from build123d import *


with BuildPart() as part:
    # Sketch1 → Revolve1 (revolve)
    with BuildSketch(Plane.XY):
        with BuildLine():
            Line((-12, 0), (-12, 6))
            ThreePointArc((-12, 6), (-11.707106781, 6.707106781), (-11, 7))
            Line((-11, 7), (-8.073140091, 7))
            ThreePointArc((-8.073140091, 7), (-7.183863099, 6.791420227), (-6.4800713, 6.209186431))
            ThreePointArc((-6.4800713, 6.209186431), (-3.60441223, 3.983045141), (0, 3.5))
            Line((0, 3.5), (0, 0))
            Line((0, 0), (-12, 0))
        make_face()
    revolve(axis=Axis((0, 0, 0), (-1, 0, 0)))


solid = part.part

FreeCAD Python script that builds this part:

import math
import FreeCAD as App
import Part
import Sketcher

V = App.Vector

doc = App.newDocument("Part")
body = doc.addObject("PartDesign::Body", "Body")

# Sketch on XY plane
sketch1 = doc.addObject("Sketcher::SketchObject", "Sketch")
body.addObject(sketch1)
sketch1.AttachmentSupport = (doc.XY_Plane, [""])
sketch1.MapMode = "FlatFace"
sketch1.addGeometry(Part.LineSegment(V(-12, 6, 0), V(-12, 0, 0)), False)
sketch1.addGeometry(Part.LineSegment(V(-12, 0, 0), V(0, 0, 0)), False)
sketch1.addGeometry(Part.LineSegment(V(0, 0, 0), V(0, 3.5, 0)), False)
sketch1.addGeometry(Part.ArcOfCircle(Part.Circle(V(-0.9, 10.4, 0), V(0, 0, 1), 7), math.radians(-143), math.radians(-83)), False)
sketch1.addGeometry(Part.ArcOfCircle(Part.Circle(V(-8.1, 5, 0), V(0, 0, 1), 2), math.radians(37), math.radians(90)), False)
sketch1.addGeometry(Part.LineSegment(V(-8.1, 7, 0), V(-11, 7, 0)), False)
sketch1.addGeometry(Part.ArcOfCircle(Part.Circle(V(-11, 6, 0), V(0, 0, 1), 1), math.radians(90), math.radians(180)), False)
sketch1.addConstraint(Sketcher.Constraint("Coincident", 0, 2, 1, 1))
sketch1.addConstraint(Sketcher.Constraint("Coincident", 1, 2, 2, 1))
sketch1.addConstraint(Sketcher.Constraint("Coincident", 2, 2, 3, 2))
sketch1.addConstraint(Sketcher.Constraint("Tangent", 3, 1, 4, 1))
sketch1.addConstraint(Sketcher.Constraint("Tangent", 4, 2, 5, 1))
sketch1.addConstraint(Sketcher.Constraint("Tangent", 5, 2, 6, 1))
sketch1.addConstraint(Sketcher.Constraint("Tangent", 6, 2, 0, 1))
sketch1.addConstraint(Sketcher.Constraint("Vertical", 0))
sketch1.addConstraint(Sketcher.Constraint("Horizontal", 1))
sketch1.addConstraint(Sketcher.Constraint("Vertical", 2))
sketch1.addConstraint(Sketcher.Constraint("Horizontal", 5))
sketch1.addConstraint(Sketcher.Constraint("Coincident", 1, 2, -1, 1))
sketch1.addConstraint(Sketcher.Constraint("Radius", 3, 7.0))
sketch1.addConstraint(Sketcher.Constraint("Radius", 4, 2.0))
sketch1.addConstraint(Sketcher.Constraint("Radius", 6, 1.0))
sketch1.addConstraint(Sketcher.Constraint("DistanceX", 1, 1, 1, 2, 12.0))
sketch1.addConstraint(Sketcher.Constraint("DistanceY", 0, 2, 0, 1, 6.0))
sketch1.addConstraint(Sketcher.Constraint("DistanceY", 2, 1, 2, 2, 3.5))
sketch1.addConstraint(Sketcher.Constraint("DistanceX", 5, 2, 5, 1, 2.92686))
revolution = doc.addObject("PartDesign::Revolution", "Revolution")
body.addObject(revolution)
revolution.Profile = sketch1
revolution.ReferenceAxis = (sketch1, ["H_Axis"])
revolution.Angle = 360

doc.recompute()
